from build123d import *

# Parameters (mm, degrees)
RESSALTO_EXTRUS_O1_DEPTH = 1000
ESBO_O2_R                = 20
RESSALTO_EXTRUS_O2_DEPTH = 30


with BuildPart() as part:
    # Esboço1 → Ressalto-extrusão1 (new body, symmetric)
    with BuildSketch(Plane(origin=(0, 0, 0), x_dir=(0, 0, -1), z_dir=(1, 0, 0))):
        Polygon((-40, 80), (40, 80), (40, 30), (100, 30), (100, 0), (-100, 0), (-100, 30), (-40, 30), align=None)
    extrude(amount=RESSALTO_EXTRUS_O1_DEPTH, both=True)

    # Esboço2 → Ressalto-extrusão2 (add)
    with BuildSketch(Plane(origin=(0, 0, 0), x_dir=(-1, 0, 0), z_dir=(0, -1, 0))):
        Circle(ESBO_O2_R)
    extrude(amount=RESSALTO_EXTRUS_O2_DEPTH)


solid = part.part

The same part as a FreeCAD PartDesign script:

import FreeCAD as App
import Part
import Sketcher

V = App.Vector

doc = App.newDocument("Part")
body = doc.addObject("PartDesign::Body", "Body")

sketch1 = body.newObject("Sketcher::SketchObject", "Sketch")
sketch1.AttachmentSupport = (doc.getObject("YZ_Plane"), [""])
sketch1.MapMode = "FlatFace"
sketch1.addGeometry([
    Part.LineSegment(V(80, -40, 0), V(80, 40, 0)),
    Part.LineSegment(V(80, 40, 0), V(30, 40, 0)),
    Part.LineSegment(V(30, 40, 0), V(30, 100, 0)),
    Part.LineSegment(V(30, 100, 0), V(0, 100, 0)),
    Part.LineSegment(V(0, 100, 0), V(0, -100, 0)),
    Part.LineSegment(V(0, -100, 0), V(30, -100, 0)),
    Part.LineSegment(V(30, -100, 0), V(30, -40, 0)),
    Part.LineSegment(V(30, -40, 0), V(80, -40, 0)),
], False)
sketch1.addConstraint([
    Sketcher.Constraint("Coincident", 0, 2, 1, 1),
    Sketcher.Constraint("Coincident", 1, 2, 2, 1),
    Sketcher.Constraint("Coincident", 2, 2, 3, 1),
    Sketcher.Constraint("Coincident", 3, 2, 4, 1),
    Sketcher.Constraint("Coincident", 4, 2, 5, 1),
    Sketcher.Constraint("Coincident", 5, 2, 6, 1),
    Sketcher.Constraint("Coincident", 6, 2, 7, 1),
    Sketcher.Constraint("Coincident", 7, 2, 0, 1),
    Sketcher.Constraint("Vertical", 0),
    Sketcher.Constraint("Horizontal", 1),
    Sketcher.Constraint("Vertical", 2),
    Sketcher.Constraint("Horizontal", 3),
    Sketcher.Constraint("Vertical", 4),
    Sketcher.Constraint("Horizontal", 5),
    Sketcher.Constraint("Vertical", 6),
    Sketcher.Constraint("Horizontal", 7),
    Sketcher.Constraint("Symmetric", 3, 2, 4, 2, -1, 1),
    Sketcher.Constraint("Symmetric", 1, 2, 6, 2, -1),
    Sketcher.Constraint("DistanceX", 1, 2, 1, 1, 50.0),
    Sketcher.Constraint("DistanceX", 3, 2, 3, 1, 30.0),
    Sketcher.Constraint("DistanceY", 0, 1, 0, 2, 80.0),
    Sketcher.Constraint("DistanceY", 2, 1, 2, 2, 60.0),
])
pad1 = body.newObject("PartDesign::Pad", "Pad")
pad1.Profile = sketch1
pad1.Length = 2000
pad1.Midplane = True

sketch2 = body.newObject("Sketcher::SketchObject", "Sketch001")
sketch2.AttachmentSupport = (doc.getObject("XZ_Plane"), [""])
sketch2.MapMode = "FlatFace"
sketch2.addGeometry(Part.Circle(V(0, 0, 0), V(0, 0, 1), 20), False)
sketch2.addConstraint([
    Sketcher.Constraint("Coincident", 0, 3, -1, 1),
    Sketcher.Constraint("Diameter", 0, 40.0),
])
pad2 = body.newObject("PartDesign::Pad", "Pad001")
pad2.Profile = sketch2
pad2.Length = 30

doc.recompute()
